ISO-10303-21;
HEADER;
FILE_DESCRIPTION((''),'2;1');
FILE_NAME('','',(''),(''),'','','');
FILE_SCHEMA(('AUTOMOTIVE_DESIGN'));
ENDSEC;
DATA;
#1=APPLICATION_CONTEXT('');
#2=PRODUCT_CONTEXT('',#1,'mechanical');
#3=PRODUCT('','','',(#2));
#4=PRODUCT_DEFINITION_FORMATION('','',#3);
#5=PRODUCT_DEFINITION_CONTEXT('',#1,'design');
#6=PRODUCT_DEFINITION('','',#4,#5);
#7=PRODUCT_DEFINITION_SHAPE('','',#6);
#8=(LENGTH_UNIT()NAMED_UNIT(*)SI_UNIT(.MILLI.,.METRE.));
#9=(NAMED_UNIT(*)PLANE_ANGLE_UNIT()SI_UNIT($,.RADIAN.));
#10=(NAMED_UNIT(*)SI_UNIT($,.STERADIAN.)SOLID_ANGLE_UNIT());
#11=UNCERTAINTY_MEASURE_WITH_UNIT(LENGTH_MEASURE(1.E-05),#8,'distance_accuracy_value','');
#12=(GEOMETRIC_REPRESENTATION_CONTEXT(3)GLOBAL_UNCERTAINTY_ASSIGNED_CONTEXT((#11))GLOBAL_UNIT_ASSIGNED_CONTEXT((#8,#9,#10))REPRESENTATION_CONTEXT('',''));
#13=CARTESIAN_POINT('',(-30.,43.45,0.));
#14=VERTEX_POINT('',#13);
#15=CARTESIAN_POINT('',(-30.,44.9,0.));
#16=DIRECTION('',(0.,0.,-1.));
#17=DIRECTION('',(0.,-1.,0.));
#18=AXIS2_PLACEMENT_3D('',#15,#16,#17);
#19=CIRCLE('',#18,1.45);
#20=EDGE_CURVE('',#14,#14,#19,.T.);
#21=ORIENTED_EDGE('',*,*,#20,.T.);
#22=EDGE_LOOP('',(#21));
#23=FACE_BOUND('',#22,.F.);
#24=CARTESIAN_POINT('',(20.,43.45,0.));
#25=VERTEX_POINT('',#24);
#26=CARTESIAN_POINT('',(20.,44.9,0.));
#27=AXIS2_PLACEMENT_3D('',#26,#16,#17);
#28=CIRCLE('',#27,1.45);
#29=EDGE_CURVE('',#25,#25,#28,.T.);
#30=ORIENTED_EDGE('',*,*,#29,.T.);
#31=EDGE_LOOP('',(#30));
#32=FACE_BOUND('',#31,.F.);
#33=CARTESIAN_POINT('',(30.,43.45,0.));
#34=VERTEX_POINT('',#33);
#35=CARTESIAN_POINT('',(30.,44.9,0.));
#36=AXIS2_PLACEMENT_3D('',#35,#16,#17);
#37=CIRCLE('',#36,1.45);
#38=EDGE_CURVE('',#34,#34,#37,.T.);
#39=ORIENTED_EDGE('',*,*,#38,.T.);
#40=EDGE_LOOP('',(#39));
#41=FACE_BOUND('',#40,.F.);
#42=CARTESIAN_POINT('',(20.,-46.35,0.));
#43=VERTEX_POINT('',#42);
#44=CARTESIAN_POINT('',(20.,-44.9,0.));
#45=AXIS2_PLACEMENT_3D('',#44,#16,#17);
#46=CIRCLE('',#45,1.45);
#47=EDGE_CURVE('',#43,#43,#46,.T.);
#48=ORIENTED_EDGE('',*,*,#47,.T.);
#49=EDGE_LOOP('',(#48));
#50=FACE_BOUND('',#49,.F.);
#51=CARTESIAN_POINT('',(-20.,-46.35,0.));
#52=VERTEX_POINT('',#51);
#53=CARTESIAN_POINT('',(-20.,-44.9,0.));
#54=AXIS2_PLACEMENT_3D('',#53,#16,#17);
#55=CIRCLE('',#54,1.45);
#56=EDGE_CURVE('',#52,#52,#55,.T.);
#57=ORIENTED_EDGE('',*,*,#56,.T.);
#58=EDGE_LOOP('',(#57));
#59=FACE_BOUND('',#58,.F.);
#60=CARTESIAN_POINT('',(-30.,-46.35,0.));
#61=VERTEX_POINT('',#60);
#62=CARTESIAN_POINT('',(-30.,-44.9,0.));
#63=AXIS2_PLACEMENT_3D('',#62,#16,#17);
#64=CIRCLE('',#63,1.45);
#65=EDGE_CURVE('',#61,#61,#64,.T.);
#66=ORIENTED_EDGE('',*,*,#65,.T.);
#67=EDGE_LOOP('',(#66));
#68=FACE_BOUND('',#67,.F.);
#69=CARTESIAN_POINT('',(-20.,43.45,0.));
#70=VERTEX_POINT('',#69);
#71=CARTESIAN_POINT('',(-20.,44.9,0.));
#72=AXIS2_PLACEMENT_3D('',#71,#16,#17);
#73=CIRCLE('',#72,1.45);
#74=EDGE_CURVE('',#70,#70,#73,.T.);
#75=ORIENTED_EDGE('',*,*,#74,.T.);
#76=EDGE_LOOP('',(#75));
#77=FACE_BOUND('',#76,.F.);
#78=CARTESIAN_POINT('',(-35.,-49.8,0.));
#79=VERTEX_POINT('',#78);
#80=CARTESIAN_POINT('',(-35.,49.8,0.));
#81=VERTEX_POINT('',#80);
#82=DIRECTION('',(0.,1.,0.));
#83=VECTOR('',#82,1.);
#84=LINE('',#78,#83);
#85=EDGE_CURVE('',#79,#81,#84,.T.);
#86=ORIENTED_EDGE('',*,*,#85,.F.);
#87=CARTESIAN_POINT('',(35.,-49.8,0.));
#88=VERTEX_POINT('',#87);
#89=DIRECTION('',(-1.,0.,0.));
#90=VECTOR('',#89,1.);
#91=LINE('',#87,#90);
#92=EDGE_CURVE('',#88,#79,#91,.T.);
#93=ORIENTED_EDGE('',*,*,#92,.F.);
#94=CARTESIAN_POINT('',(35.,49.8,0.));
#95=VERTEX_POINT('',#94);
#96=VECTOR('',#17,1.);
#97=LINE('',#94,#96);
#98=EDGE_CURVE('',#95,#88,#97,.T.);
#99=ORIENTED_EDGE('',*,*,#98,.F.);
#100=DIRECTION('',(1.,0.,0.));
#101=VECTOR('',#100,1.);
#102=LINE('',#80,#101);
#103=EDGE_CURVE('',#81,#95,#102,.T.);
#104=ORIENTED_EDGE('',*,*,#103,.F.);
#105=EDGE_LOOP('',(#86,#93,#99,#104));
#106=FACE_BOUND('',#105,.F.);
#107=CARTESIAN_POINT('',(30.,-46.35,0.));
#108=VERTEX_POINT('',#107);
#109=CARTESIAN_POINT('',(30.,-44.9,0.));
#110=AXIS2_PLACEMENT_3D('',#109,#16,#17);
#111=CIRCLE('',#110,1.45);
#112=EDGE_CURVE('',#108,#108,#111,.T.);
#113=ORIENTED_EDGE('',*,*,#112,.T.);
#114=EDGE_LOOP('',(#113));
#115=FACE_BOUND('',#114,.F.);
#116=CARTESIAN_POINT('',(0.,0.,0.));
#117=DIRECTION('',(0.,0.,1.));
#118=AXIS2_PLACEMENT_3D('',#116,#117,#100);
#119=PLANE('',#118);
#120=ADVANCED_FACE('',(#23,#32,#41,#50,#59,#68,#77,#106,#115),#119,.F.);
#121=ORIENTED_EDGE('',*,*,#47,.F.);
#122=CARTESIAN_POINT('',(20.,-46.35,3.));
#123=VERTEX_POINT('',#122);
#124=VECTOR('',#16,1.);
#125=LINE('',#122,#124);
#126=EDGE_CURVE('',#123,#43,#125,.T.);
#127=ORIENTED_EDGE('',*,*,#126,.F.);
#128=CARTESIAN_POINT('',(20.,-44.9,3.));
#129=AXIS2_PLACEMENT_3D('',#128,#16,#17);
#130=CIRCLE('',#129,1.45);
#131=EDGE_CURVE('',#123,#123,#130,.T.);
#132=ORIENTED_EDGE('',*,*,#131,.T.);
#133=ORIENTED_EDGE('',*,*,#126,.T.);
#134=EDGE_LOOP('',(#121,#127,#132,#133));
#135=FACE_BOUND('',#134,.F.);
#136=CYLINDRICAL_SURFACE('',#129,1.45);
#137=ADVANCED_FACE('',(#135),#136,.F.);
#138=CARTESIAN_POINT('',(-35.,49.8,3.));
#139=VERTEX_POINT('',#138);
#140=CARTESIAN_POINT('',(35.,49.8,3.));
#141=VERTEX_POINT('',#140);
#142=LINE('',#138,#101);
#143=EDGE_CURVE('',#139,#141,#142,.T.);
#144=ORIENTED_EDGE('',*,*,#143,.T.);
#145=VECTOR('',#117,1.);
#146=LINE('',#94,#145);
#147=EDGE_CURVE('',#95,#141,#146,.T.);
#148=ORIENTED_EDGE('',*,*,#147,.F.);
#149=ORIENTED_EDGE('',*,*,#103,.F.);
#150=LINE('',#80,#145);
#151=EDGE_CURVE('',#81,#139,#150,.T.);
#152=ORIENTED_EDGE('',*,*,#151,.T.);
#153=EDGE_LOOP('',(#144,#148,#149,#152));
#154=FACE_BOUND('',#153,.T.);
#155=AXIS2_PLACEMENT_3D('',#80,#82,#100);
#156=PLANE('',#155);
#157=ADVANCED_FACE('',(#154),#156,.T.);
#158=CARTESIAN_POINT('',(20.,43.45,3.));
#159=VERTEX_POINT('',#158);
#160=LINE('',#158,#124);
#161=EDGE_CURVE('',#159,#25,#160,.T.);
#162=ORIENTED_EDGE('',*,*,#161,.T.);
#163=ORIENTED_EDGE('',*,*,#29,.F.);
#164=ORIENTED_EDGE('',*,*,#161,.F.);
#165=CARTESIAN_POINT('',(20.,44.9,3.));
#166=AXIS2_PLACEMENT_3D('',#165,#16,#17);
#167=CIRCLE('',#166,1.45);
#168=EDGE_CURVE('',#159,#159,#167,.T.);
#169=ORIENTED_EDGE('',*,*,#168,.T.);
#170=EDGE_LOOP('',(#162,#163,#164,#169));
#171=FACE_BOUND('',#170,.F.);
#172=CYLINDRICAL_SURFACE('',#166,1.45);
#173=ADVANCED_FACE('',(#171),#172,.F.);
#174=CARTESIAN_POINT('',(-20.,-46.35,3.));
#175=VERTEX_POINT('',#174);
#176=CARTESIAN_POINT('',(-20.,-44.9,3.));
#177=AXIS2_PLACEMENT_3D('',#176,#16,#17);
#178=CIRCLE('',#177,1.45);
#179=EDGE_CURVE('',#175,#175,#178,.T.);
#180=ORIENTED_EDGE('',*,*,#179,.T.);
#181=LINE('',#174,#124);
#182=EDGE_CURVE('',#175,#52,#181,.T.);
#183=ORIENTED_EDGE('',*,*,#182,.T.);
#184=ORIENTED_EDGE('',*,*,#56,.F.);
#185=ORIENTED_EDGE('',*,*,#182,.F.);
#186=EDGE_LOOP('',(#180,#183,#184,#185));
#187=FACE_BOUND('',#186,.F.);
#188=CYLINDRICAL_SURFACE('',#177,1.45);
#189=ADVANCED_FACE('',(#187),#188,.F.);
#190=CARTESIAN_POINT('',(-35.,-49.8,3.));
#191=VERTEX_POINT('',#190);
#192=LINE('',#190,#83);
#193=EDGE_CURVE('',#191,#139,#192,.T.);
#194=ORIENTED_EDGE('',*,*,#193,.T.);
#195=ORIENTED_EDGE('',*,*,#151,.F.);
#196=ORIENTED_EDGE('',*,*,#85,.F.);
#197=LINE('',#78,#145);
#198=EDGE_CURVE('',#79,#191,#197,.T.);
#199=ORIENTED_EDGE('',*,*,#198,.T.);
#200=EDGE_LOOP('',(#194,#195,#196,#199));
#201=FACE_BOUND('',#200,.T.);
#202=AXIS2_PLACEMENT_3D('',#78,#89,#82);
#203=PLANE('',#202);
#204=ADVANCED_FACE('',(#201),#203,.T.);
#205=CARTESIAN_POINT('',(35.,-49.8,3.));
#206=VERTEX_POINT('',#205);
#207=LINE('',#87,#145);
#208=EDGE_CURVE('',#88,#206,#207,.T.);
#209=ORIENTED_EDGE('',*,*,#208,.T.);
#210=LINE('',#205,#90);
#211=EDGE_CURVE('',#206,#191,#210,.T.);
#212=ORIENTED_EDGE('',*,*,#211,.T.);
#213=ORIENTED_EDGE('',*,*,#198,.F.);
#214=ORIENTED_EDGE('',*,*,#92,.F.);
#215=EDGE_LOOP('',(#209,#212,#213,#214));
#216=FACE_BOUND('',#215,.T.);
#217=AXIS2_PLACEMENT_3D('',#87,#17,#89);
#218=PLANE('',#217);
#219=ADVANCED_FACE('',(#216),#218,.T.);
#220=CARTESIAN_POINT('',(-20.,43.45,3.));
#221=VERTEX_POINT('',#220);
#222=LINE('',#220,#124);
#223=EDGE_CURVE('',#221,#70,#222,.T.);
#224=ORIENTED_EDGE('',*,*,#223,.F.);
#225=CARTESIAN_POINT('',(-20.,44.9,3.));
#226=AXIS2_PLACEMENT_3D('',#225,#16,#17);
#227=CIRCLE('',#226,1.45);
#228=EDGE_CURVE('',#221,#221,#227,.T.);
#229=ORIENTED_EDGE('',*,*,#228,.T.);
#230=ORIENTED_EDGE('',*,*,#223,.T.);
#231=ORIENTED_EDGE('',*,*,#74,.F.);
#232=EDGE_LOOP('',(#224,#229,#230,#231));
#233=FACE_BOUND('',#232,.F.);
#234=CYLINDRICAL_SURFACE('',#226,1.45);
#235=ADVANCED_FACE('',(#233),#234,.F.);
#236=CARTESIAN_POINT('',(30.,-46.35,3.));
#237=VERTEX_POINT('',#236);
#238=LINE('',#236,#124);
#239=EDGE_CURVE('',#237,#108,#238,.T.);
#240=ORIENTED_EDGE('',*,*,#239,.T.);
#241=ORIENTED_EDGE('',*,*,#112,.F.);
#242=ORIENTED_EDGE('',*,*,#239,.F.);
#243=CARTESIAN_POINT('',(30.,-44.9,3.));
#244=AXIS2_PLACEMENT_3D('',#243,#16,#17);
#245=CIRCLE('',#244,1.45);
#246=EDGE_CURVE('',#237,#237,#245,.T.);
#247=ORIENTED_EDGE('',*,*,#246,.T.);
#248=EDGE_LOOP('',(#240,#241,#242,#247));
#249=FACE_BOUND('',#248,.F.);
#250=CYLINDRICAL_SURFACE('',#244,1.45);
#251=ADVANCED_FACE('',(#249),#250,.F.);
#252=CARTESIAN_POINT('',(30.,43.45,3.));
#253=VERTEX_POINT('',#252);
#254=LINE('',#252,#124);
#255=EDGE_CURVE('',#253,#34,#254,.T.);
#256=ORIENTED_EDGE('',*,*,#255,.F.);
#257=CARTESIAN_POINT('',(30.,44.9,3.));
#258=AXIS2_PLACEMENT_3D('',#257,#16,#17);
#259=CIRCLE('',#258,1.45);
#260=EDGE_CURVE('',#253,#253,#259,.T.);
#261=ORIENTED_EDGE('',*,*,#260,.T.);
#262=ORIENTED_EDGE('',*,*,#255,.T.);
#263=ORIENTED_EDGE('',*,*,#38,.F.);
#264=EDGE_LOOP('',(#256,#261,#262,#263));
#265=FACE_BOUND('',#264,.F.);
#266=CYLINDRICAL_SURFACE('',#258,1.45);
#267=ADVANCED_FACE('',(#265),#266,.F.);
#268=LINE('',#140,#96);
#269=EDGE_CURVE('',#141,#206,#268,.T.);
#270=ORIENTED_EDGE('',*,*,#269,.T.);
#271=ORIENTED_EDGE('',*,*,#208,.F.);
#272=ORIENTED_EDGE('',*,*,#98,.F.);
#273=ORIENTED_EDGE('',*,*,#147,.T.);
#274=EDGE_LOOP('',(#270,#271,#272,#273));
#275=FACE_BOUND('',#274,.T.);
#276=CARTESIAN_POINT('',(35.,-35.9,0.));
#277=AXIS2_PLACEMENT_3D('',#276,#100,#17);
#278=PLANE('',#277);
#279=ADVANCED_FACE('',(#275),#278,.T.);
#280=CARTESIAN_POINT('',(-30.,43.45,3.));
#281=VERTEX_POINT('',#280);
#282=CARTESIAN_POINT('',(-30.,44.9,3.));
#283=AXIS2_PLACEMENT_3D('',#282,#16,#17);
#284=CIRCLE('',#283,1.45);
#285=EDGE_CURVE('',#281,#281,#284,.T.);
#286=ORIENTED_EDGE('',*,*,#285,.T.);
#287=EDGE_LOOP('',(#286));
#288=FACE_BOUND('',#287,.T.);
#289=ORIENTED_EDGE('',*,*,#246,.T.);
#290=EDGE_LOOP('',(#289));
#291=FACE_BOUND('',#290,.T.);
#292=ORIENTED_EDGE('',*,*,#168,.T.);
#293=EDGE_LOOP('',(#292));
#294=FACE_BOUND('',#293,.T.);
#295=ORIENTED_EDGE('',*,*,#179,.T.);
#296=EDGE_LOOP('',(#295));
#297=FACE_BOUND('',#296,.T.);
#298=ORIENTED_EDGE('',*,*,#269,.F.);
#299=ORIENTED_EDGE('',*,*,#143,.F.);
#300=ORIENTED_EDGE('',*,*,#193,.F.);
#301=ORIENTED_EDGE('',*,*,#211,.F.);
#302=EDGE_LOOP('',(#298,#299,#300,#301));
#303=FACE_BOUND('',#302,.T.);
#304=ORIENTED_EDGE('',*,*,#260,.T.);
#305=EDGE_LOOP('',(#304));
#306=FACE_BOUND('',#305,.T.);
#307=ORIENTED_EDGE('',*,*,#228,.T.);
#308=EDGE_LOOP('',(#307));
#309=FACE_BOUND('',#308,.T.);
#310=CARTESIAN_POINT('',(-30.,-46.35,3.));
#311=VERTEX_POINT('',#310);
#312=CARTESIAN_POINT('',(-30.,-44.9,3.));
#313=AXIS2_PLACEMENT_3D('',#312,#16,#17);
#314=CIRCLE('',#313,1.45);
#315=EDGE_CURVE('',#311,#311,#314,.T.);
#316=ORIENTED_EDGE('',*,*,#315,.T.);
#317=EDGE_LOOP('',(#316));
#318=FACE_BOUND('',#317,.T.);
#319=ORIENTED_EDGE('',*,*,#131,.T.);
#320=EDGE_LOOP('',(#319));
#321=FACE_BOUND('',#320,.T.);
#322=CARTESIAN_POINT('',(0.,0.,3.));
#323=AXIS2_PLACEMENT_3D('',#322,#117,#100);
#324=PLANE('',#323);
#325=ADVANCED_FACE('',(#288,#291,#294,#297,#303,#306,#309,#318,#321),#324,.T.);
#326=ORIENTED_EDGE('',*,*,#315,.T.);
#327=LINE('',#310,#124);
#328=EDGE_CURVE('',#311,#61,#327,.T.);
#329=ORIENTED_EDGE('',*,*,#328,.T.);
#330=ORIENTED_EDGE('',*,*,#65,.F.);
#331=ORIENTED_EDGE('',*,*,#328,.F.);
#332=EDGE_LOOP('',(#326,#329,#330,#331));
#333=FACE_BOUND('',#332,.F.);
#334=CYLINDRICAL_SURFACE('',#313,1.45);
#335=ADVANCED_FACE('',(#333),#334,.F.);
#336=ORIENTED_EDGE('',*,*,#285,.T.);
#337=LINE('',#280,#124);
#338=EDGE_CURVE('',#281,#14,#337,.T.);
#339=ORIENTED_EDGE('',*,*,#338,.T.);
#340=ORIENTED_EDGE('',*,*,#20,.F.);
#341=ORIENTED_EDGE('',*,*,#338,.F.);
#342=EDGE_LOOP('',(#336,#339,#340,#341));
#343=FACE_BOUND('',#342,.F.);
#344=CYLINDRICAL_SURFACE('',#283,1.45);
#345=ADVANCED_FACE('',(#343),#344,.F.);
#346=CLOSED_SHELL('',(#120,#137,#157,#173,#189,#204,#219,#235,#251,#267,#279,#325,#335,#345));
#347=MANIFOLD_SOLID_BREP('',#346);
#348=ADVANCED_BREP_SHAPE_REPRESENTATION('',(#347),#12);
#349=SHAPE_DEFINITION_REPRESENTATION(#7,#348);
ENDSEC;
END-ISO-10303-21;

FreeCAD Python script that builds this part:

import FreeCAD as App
import Part
import Sketcher
from FreeCAD import Vector

doc = App.newDocument("Part")
params = doc.addObject("Spreadsheet::Sheet", "Params")
for row, (alias, value) in enumerate([
    ("sketch1_width", "70 mm"),
    ("sketch1_height", "99.6 mm"),
    ("pad1_length", "3 mm"),
    ("sketch2_diameter", "2.9 mm"),
    ("hole_diameter", "2.9 mm"),
], start=1):
    params.set(f"A{row}", alias)
    params.set(f"B{row}", "=" + value)
    params.setAlias(f"B{row}", alias)

body = doc.addObject("PartDesign::Body", "Body")

# Sketch on XY plane
sketch1 = body.newObject("Sketcher::SketchObject", "Sketch")
sketch1.AttachmentSupport = (doc.getObject("XY_Plane"), [""])
sketch1.MapMode = "FlatFace"
sketch1.addGeometry(Part.LineSegment(Vector(-35, -50, 0), Vector(35, -50, 0)), False)
sketch1.addGeometry(Part.LineSegment(Vector(35, -50, 0), Vector(35, 50, 0)), False)
sketch1.addGeometry(Part.LineSegment(Vector(35, 50, 0), Vector(-35, 50, 0)), False)
sketch1.addGeometry(Part.LineSegment(Vector(-35, 50, 0), Vector(-35, -50, 0)), False)
sketch1.addConstraint(Sketcher.Constraint("Coincident", 0, 2, 1, 1))
sketch1.addConstraint(Sketcher.Constraint("Coincident", 1, 2, 2, 1))
sketch1.addConstraint(Sketcher.Constraint("Coincident", 2, 2, 3, 1))
sketch1.addConstraint(Sketcher.Constraint("Coincident", 3, 2, 0, 1))
sketch1.addConstraint(Sketcher.Constraint("Horizontal", 0))
sketch1.addConstraint(Sketcher.Constraint("Vertical", 1))
sketch1.addConstraint(Sketcher.Constraint("Horizontal", 2))
sketch1.addConstraint(Sketcher.Constraint("Vertical", 3))
sketch1.addConstraint(Sketcher.Constraint("Symmetric", 0, 2, 2, 2, -1, 1))
sketch1.addConstraint(Sketcher.Constraint("DistanceX", 0, 1, 0, 2, 70.0))
sketch1.addConstraint(Sketcher.Constraint("DistanceY", 1, 1, 1, 2, 99.6))
sketch1.setExpression("Constraints[9]", "Params.sketch1_width")
sketch1.setExpression("Constraints[10]", "Params.sketch1_height")
pad1 = body.newObject("PartDesign::Pad", "Pad")
pad1.Profile = sketch1
pad1.setExpression("Length", "Params.pad1_length")

# Sketch on XY plane
sketch2 = body.newObject("Sketcher::SketchObject", "Sketch001")
sketch2.AttachmentSupport = (doc.getObject("XY_Plane"), [""])
sketch2.MapMode = "FlatFace"
sketch2.AttachmentOffset = App.Placement(Vector(0, 0, 3), App.Rotation())
sketch2.addGeometry(Part.Circle(Vector(30, 44.9, 0), Vector(0, 0, 1), 1.4), False)
sketch2.addGeometry(Part.Circle(Vector(20, 44.9, 0), Vector(0, 0, 1), 1.4), False)
sketch2.addGeometry(Part.Circle(Vector(-30, -44.9, 0), Vector(0, 0, 1), 1.4), False)
sketch2.addGeometry(Part.Circle(Vector(-20, -44.9, 0), Vector(0, 0, 1), 1.4), False)
sketch2.addGeometry(Part.Circle(Vector(20, -44.9, 0), Vector(0, 0, 1), 1.4), False)
sketch2.addGeometry(Part.Circle(Vector(30, -44.9, 0), Vector(0, 0, 1), 1.4), False)
sketch2.addGeometry(Part.Circle(Vector(-20, 44.9, 0), Vector(0, 0, 1), 1.4), False)
sketch2.addGeometry(Part.Circle(Vector(-30, 44.9, 0), Vector(0, 0, 1), 1.4), False)
sketch2.addConstraint(Sketcher.Constraint("Equal", 0, 1))
sketch2.addConstraint(Sketcher.Constraint("Equal", 1, 2))
sketch2.addConstraint(Sketcher.Constraint("Equal", 2, 3))
sketch2.addConstraint(Sketcher.Constraint("Equal", 3, 4))
sketch2.addConstraint(Sketcher.Constraint("Equal", 4, 5))
sketch2.addConstraint(Sketcher.Constraint("Equal", 5, 6))
sketch2.addConstraint(Sketcher.Constraint("Equal", 6, 7))
sketch2.addConstraint(Sketcher.Constraint("Symmetric", 0, 3, 2, 3, -1, 1))
sketch2.addConstraint(Sketcher.Constraint("Symmetric", 1, 3, 3, 3, -1, 1))
sketch2.addConstraint(Sketcher.Constraint("Symmetric", 4, 3, 6, 3, -1, 1))
sketch2.addConstraint(Sketcher.Constraint("Symmetric", 5, 3, 7, 3, -1, 1))
sketch2.addConstraint(Sketcher.Constraint("Symmetric", 3, 3, 4, 3, -2))
sketch2.addConstraint(Sketcher.Constraint("Symmetric", 2, 3, 5, 3, -2))
sketch2.addConstraint(Sketcher.Constraint("Horizontal", 0, 3, 1, 3))
sketch2.addConstraint(Sketcher.Constraint("Diameter", 0, 2.9))
sketch2.addConstraint(Sketcher.Constraint("DistanceX", -1, 1, 0, 3, 30.0))
sketch2.addConstraint(Sketcher.Constraint("DistanceX", -1, 1, 1, 3, 20.0))
sketch2.addConstraint(Sketcher.Constraint("DistanceY", -1, 1, 0, 3, 44.9))
sketch2.setExpression("Constraints[14]", "Params.sketch2_diameter")
doc.recompute()
hole = body.newObject("PartDesign::Hole", "Hole")
hole.Profile = sketch2
hole.ThreadType = "None"
hole.setExpression("Diameter", "Params.hole_diameter")
hole.DepthType = "ThroughAll"

doc.recompute()
